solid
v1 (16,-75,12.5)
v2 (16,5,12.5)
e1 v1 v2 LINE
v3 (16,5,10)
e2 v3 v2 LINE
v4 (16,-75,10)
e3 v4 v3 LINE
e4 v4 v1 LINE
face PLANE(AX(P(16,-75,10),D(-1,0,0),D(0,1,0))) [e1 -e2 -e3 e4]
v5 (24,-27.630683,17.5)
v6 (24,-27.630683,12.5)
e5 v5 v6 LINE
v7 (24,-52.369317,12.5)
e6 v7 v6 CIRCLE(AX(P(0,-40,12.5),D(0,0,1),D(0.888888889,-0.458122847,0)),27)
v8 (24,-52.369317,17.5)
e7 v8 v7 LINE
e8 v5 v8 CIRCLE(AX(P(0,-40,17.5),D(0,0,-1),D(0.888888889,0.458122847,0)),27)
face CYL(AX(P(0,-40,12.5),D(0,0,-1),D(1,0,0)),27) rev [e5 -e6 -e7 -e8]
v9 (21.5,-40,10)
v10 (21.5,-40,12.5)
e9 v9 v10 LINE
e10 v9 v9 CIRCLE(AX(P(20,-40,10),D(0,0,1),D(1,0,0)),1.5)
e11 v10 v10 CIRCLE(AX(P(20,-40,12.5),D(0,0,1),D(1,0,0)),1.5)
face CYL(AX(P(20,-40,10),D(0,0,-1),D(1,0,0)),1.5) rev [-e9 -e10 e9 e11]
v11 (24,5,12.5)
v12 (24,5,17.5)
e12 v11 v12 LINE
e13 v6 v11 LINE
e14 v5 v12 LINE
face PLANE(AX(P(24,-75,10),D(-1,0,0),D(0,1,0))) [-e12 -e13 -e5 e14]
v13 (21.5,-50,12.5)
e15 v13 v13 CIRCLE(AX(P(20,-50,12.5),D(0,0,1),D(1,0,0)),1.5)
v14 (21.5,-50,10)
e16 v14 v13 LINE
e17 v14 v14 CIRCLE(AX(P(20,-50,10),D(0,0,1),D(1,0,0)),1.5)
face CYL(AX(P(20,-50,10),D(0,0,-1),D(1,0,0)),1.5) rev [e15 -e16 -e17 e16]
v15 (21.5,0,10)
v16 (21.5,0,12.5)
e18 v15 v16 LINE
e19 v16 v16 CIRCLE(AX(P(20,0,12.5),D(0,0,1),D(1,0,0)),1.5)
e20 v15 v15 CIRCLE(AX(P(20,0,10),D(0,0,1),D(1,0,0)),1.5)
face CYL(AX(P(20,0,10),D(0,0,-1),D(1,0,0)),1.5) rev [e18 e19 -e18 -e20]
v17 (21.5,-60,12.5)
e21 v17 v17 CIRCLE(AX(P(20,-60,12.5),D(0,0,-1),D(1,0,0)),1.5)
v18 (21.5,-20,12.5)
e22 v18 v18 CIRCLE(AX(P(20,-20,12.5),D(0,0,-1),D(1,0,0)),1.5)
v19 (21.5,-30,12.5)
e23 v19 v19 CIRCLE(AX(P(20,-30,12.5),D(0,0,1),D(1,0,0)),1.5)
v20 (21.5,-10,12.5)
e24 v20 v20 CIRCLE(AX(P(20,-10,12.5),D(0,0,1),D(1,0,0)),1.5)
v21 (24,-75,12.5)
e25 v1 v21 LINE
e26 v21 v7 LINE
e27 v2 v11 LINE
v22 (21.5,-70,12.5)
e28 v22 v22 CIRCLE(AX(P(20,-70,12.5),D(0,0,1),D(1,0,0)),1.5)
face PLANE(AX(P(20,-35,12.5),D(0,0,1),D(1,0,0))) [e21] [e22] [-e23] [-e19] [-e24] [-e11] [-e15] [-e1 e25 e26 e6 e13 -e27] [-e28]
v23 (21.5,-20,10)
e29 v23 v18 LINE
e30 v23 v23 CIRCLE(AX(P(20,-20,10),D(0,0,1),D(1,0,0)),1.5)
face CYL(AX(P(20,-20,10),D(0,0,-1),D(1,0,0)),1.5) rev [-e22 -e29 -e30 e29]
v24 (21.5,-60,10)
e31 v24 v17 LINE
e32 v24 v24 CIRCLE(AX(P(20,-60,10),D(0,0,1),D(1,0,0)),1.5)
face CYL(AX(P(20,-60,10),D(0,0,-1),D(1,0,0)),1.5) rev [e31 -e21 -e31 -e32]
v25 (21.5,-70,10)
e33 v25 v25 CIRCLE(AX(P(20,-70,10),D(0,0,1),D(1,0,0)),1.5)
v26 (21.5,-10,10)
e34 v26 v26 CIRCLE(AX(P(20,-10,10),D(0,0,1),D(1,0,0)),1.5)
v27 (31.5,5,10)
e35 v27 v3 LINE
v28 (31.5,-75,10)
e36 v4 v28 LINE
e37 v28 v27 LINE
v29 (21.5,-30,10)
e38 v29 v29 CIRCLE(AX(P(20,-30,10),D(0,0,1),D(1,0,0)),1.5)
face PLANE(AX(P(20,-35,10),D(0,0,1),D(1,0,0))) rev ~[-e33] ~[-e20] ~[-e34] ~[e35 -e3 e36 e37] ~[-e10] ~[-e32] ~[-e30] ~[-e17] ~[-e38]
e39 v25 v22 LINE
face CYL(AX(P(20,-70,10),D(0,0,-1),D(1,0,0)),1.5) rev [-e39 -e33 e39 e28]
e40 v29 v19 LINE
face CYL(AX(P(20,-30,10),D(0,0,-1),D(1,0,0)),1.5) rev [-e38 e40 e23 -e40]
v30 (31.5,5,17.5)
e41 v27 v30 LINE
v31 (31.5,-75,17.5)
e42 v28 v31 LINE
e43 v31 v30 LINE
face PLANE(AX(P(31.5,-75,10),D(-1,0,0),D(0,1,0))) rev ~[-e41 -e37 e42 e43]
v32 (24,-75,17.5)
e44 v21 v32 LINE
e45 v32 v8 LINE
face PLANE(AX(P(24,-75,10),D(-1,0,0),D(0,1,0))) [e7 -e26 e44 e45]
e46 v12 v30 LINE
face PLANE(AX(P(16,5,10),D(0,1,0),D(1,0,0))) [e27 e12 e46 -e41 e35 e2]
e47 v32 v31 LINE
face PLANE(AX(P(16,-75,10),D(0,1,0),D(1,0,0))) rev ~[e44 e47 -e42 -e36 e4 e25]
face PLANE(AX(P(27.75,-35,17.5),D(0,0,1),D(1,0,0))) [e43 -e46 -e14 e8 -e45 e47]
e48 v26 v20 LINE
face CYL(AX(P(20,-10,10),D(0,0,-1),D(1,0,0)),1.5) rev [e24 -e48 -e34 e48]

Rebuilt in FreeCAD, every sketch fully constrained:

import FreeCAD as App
import Part
import Sketcher
Q = App.Units.Quantity

doc = App.newDocument("Part")
body = doc.addObject("PartDesign::Body", "Body")

# Sketch on XY plane
sketch1 = body.newObject("Sketcher::SketchObject", "Sketch")
sketch1.AttachmentSupport = (doc.getObject("XY_Plane"), [""])
sketch1.MapMode = "FlatFace"
sketch1.AttachmentOffset = App.Placement(App.Vector(0, 0, 12.5), App.Rotation())
sketch1.addGeometry(Part.Circle(App.Vector(0, -40, 0), App.Vector(0, 0, 1), 27), False)
sketch1.addConstraint(Sketcher.Constraint("PointOnObject", 0, 3, -2))
sketch1.addConstraint(Sketcher.Constraint("Diameter", 0, Q("54 mm")))
sketch1.addConstraint(Sketcher.Constraint("DistanceY", 0, 3, -1, 1, Q("40 mm")))
pad1 = body.newObject("PartDesign::Pad", "Pad")
pad1.Profile = sketch1
pad1.Length = 10
body2 = doc.addObject("PartDesign::Body", "Body001")

# Sketch on XY plane
sketch2 = body2.newObject("Sketcher::SketchObject", "Sketch001")
sketch2.AttachmentSupport = (doc.getObject("XY_Plane001"), [""])
sketch2.MapMode = "FlatFace"
sketch2.AttachmentOffset = App.Placement(App.Vector(0, 0, 10), App.Rotation())
sketch2.addGeometry(Part.LineSegment(App.Vector(-8, 0, 0), App.Vector(-8, -80, 0)), False)
sketch2.addGeometry(Part.LineSegment(App.Vector(-8, -80, 0), App.Vector(0, -80, 0)), False)
sketch2.addGeometry(Part.LineSegment(App.Vector(0, -80, 0), App.Vector(0, 0, 0)), False)
sketch2.addGeometry(Part.LineSegment(App.Vector(0, 0, 0), App.Vector(-8, 0, 0)), False)
sketch2.addGeometry(Part.Circle(App.Vector(-4, -75, 0), App.Vector(0, 0, 1), 1.5), False)
sketch2.addGeometry(Part.Circle(App.Vector(-4, -65, 0), App.Vector(0, 0, 1), 1.5), False)
sketch2.addGeometry(Part.Circle(App.Vector(-4, -55, 0), App.Vector(0, 0, 1), 1.5), False)
sketch2.addGeometry(Part.Circle(App.Vector(-4, -45, 0), App.Vector(0, 0, 1), 1.5), False)
sketch2.addGeometry(Part.Circle(App.Vector(-4, -35, 0), App.Vector(0, 0, 1), 1.5), False)
sketch2.addGeometry(Part.Circle(App.Vector(-4, -25, 0), App.Vector(0, 0, 1), 1.5), False)
sketch2.addGeometry(Part.Circle(App.Vector(-4, -15, 0), App.Vector(0, 0, 1), 1.5), False)
sketch2.addGeometry(Part.Circle(App.Vector(-4, -5, 0), App.Vector(0, 0, 1), 1.5), False)
sketch2.addConstraint(Sketcher.Constraint("Coincident", 0, 2, 1, 1))
sketch2.addConstraint(Sketcher.Constraint("Coincident", 1, 2, 2, 1))
sketch2.addConstraint(Sketcher.Constraint("Coincident", 2, 2, 3, 1))
sketch2.addConstraint(Sketcher.Constraint("Coincident", 3, 2, 0, 1))
sketch2.addConstraint(Sketcher.Constraint("Vertical", 0))
sketch2.addConstraint(Sketcher.Constraint("Horizontal", 1))
sketch2.addConstraint(Sketcher.Constraint("Vertical", 2))
sketch2.addConstraint(Sketcher.Constraint("Horizontal", 3))
sketch2.addConstraint(Sketcher.Constraint("Coincident", 2, 2, -1, 1))
sketch2.addConstraint(Sketcher.Constraint("Equal", 4, 5))
sketch2.addConstraint(Sketcher.Constraint("Equal", 5, 6))
sketch2.addConstraint(Sketcher.Constraint("Equal", 6, 7))
sketch2.addConstraint(Sketcher.Constraint("Equal", 7, 8))
sketch2.addConstraint(Sketcher.Constraint("Equal", 8, 9))
sketch2.addConstraint(Sketcher.Constraint("Equal", 9, 10))
sketch2.addConstraint(Sketcher.Constraint("Equal", 10, 11))
sketch2.addConstraint(Sketcher.Constraint("Vertical", 4, 3, 5, 3))
sketch2.addConstraint(Sketcher.Constraint("Vertical", 5, 3, 6, 3))
sketch2.addConstraint(Sketcher.Constraint("Vertical", 6, 3, 7, 3))
sketch2.addConstraint(Sketcher.Constraint("Vertical", 7, 3, 8, 3))
sketch2.addConstraint(Sketcher.Constraint("Vertical", 8, 3, 9, 3))
sketch2.addConstraint(Sketcher.Constraint("Vertical", 9, 3, 10, 3))
sketch2.addConstraint(Sketcher.Constraint("Vertical", 10, 3, 11, 3))
sketch2.addConstraint(Sketcher.Constraint("Diameter", 4, Q("3 mm")))
sketch2.addConstraint(Sketcher.Constraint("DistanceX", 1, 1, 1, 2, Q("8 mm")))
sketch2.addConstraint(Sketcher.Constraint("DistanceY", 0, 2, 0, 1, Q("80 mm")))
sketch2.addConstraint(Sketcher.Constraint("DistanceX", 4, 3, -1, 1, Q("4 mm")))
sketch2.addConstraint(Sketcher.Constraint("DistanceY", 4, 3, -1, 1, Q("75 mm")))
sketch2.addConstraint(Sketcher.Constraint("DistanceY", 5, 3, -1, 1, Q("65 mm")))
sketch2.addConstraint(Sketcher.Constraint("DistanceY", 6, 3, -1, 1, Q("55 mm")))
sketch2.addConstraint(Sketcher.Constraint("DistanceY", 7, 3, -1, 1, Q("45 mm")))
sketch2.addConstraint(Sketcher.Constraint("DistanceY", 8, 3, -1, 1, Q("35 mm")))
sketch2.addConstraint(Sketcher.Constraint("DistanceY", 9, 3, -1, 1, Q("25 mm")))
sketch2.addConstraint(Sketcher.Constraint("DistanceY", 10, 3, -1, 1, Q("15 mm")))
sketch2.addConstraint(Sketcher.Constraint("DistanceY", 11, 3, -1, 1, Q("5 mm")))
pad2 = body2.newObject("PartDesign::Pad", "Pad001")
pad2.Profile = sketch2
pad2.Length = 2.5
body3 = doc.addObject("PartDesign::Body", "Body002")

# Sketch on XY plane
sketch3 = body3.newObject("Sketcher::SketchObject", "Sketch002")
sketch3.AttachmentSupport = (doc.getObject("XY_Plane002"), [""])
sketch3.MapMode = "FlatFace"
sketch3.AttachmentOffset = App.Placement(App.Vector(0, 0, 10), App.Rotation())
sketch3.addGeometry(Part.LineSegment(App.Vector(0, 0, 0), App.Vector(0, -80, 0)), False)
sketch3.addGeometry(Part.LineSegment(App.Vector(0, -80, 0), App.Vector(8, -80, 0)), False)
sketch3.addGeometry(Part.LineSegment(App.Vector(8, -80, 0), App.Vector(8, 0, 0)), False)
sketch3.addGeometry(Part.LineSegment(App.Vector(8, 0, 0), App.Vector(0, 0, 0)), False)
sketch3.addConstraint(Sketcher.Constraint("Coincident", 0, 2, 1, 1))
sketch3.addConstraint(Sketcher.Constraint("Coincident", 1, 2, 2, 1))
sketch3.addConstraint(Sketcher.Constraint("Coincident", 2, 2, 3, 1))
sketch3.addConstraint(Sketcher.Constraint("Coincident", 3, 2, 0, 1))
sketch3.addConstraint(Sketcher.Constraint("Vertical", 0))
sketch3.addConstraint(Sketcher.Constraint("Horizontal", 1))
sketch3.addConstraint(Sketcher.Constraint("Vertical", 2))
sketch3.addConstraint(Sketcher.Constraint("Horizontal", 3))
sketch3.addConstraint(Sketcher.Constraint("Coincident", 3, 2, -1, 1))
sketch3.addConstraint(Sketcher.Constraint("DistanceY", 0, 2, 0, 1, Q("80 mm")))
sketch3.addConstraint(Sketcher.Constraint("DistanceX", 1, 1, 1, 2, Q("7.5 mm")))
pad3 = body3.newObject("PartDesign::Pad", "Pad002")
pad3.Profile = sketch3
pad3.Length = 7.5
doc.recompute()

boolean = body3.newObject("PartDesign::Boolean", "Boolean")
boolean.Type = "Fuse"
boolean.addObjects([body2])
body4 = doc.addObject("PartDesign::Body", "Body003")
doc.recompute()

body3.Placement = App.Placement(App.Vector(24, 5, 0), App.Rotation(App.Vector(0, 0, 1), 0))
boolean2 = body4.newObject("PartDesign::Boolean", "Boolean001")
boolean2.Type = "Fuse"
boolean2.addObjects([body3])
doc.recompute()

boolean3 = body4.newObject("PartDesign::Boolean", "Boolean002")
boolean3.Type = "Cut"
boolean3.addObjects([body])

doc.recompute()
